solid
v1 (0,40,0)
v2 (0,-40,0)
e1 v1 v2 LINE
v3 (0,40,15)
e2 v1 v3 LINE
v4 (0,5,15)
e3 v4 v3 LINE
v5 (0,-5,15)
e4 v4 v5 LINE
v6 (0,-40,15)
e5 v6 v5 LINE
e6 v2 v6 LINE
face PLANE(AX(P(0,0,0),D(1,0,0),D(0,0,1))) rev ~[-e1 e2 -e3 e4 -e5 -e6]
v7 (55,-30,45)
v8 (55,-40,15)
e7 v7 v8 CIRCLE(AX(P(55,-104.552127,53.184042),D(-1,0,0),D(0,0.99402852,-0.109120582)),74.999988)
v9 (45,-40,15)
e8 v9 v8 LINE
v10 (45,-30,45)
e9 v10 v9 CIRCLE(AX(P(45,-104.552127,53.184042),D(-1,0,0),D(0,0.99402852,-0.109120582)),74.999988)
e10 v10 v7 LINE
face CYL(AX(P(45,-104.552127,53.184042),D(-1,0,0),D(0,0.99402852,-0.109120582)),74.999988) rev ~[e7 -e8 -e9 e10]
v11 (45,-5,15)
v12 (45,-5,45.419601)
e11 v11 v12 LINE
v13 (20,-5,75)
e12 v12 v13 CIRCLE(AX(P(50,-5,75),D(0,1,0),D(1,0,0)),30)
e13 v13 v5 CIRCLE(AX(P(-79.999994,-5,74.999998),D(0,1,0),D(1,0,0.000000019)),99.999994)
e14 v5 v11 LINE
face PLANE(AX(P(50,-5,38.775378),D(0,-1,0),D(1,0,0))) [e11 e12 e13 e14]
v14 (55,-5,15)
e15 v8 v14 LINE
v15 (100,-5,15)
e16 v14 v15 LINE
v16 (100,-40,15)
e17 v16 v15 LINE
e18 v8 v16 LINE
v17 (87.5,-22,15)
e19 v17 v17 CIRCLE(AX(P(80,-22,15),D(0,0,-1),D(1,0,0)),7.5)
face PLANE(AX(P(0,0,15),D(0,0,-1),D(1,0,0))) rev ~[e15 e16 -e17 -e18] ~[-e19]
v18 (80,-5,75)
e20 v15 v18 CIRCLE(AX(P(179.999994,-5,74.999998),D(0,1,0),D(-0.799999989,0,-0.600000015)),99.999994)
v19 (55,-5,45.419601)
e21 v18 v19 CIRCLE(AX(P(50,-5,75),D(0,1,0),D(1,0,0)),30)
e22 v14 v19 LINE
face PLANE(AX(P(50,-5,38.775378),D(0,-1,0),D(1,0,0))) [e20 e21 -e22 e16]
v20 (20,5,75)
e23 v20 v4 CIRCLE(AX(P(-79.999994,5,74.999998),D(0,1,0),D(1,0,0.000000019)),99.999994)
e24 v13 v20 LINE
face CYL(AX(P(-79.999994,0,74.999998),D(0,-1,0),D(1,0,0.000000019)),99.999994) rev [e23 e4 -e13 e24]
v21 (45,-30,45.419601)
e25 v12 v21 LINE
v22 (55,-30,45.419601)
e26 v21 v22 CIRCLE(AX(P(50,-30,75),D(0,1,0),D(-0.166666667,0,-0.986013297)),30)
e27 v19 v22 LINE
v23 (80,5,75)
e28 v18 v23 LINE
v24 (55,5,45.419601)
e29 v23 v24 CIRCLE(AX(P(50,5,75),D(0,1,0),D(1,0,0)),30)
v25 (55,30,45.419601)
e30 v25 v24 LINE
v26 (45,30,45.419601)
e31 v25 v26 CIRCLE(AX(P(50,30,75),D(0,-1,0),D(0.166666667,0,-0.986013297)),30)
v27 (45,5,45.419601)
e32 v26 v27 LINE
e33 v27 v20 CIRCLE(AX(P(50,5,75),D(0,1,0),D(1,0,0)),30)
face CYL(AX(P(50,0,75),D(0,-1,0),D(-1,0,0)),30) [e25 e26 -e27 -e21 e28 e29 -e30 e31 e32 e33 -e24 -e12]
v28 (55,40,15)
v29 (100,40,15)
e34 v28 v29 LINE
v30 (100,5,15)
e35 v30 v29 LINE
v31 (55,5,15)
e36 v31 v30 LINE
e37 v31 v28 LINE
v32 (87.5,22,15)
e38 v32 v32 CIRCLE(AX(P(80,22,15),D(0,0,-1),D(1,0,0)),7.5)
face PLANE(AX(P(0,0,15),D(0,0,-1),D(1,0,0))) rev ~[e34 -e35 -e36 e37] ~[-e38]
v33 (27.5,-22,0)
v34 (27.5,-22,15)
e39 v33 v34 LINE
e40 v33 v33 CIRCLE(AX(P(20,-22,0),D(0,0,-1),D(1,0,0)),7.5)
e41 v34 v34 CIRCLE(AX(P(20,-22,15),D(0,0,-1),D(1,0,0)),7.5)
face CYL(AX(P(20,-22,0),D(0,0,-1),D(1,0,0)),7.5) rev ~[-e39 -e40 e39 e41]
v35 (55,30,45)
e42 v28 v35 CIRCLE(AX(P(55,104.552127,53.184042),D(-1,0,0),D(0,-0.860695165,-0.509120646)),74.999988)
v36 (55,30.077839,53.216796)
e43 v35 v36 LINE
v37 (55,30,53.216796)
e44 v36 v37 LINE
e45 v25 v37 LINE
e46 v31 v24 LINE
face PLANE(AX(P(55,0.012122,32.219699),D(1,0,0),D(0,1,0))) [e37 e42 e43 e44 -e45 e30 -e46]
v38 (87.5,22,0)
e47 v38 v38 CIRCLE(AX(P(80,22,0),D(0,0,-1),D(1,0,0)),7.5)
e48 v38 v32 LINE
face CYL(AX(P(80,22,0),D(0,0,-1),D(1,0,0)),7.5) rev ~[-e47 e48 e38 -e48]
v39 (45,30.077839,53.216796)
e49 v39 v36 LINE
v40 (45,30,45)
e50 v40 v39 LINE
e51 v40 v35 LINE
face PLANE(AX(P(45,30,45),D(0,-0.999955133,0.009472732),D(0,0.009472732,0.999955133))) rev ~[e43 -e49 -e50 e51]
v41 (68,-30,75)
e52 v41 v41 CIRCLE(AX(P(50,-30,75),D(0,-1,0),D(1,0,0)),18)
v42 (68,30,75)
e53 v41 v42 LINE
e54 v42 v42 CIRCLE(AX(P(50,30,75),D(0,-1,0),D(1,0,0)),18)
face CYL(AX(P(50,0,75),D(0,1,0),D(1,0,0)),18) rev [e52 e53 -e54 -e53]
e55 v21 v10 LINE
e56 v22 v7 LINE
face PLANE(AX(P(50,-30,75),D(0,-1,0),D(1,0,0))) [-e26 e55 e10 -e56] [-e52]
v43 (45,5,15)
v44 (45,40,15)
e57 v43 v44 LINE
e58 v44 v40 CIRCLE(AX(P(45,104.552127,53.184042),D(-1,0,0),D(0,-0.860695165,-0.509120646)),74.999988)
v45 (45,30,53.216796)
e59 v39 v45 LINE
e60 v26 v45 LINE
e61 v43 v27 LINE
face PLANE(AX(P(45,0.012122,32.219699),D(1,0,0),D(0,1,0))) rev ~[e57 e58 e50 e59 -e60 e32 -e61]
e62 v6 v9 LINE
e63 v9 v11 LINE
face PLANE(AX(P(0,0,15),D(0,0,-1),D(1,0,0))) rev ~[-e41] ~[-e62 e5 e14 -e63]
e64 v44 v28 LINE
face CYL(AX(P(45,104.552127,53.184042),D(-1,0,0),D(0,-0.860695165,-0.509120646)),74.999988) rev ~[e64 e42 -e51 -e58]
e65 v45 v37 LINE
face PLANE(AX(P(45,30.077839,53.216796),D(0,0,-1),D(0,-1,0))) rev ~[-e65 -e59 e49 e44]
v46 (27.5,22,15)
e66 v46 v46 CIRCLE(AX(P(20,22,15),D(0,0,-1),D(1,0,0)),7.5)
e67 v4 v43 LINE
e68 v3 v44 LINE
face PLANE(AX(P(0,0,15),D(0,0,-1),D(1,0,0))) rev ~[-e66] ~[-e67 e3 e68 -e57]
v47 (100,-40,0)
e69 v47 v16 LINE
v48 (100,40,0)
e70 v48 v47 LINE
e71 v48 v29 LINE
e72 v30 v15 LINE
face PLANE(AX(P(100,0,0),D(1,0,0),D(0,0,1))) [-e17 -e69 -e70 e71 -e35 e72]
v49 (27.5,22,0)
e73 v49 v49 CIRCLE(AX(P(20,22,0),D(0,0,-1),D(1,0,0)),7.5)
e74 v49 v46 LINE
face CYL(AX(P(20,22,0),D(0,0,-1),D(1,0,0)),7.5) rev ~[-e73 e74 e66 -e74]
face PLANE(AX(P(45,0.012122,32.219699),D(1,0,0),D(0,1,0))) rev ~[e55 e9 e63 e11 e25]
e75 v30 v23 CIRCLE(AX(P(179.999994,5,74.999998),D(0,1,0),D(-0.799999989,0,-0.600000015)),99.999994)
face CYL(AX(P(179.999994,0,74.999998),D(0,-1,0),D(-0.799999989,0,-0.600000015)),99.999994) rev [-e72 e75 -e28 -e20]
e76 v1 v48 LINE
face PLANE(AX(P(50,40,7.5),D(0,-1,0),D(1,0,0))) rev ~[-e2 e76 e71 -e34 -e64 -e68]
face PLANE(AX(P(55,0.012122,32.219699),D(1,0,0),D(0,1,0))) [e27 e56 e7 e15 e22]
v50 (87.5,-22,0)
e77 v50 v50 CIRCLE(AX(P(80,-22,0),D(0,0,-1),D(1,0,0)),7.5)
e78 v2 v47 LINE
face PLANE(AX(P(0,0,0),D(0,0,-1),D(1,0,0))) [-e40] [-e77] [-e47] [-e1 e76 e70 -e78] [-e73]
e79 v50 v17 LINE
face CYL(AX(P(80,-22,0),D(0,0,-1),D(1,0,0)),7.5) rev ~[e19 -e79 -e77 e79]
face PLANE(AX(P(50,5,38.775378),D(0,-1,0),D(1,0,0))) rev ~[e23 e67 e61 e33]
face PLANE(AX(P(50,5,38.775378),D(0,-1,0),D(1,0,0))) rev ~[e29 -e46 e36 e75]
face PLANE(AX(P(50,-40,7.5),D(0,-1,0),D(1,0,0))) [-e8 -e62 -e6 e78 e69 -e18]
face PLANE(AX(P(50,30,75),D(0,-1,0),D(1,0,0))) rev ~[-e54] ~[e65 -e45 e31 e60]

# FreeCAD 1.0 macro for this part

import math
import FreeCAD as App
import Part
import Sketcher
from FreeCAD import Vector
Q = App.Units.Quantity


def add_polygon(sketch, points):
    """Adds a closed chain of lines whose ends are joined by coincident constraints."""
    first, n = sketch.GeometryCount, len(points)
    for a, b in zip(points, points[1:] + points[:1]):
        sketch.addGeometry(Part.LineSegment(App.Vector(*a, 0), App.Vector(*b, 0)), False)
    for i in range(n):
        sketch.addConstraint(Sketcher.Constraint("Coincident", first + i, 2, first + (i + 1) % n, 1))

doc = App.newDocument("Part")
body = doc.addObject("PartDesign::Body", "Body")

# Sketch on XZ plane
sketch1 = body.newObject("Sketcher::SketchObject", "Sketch")
sketch1.AttachmentSupport = (doc.getObject("XZ_Plane"), [""])
sketch1.MapMode = "FlatFace"
add_polygon(sketch1, [(0, 15), (0, 0), (100, 0), (100, 15)])  # lines 0-3
sketch1.addConstraint([
    Sketcher.Constraint("Vertical", 0),
    Sketcher.Constraint("Horizontal", 1),
    Sketcher.Constraint("Vertical", 2),
    Sketcher.Constraint("Horizontal", 3),
    Sketcher.Constraint("Coincident", 0, 2, -1, 1),
    Sketcher.Constraint("DistanceX", 1, 1, 1, 2, Q("100 mm")),
    Sketcher.Constraint("DistanceY", 0, 2, 0, 1, Q("15 mm")),
])
pad1 = body.newObject("PartDesign::Pad", "Pad")
pad1.Profile = sketch1
pad1.Length = 80
pad1.Midplane = True
body2 = doc.addObject("PartDesign::Body", "Body001")

# Sketch on XZ plane
sketch2 = body2.newObject("Sketcher::SketchObject", "Sketch001")
sketch2.AttachmentSupport = (doc.getObject("XZ_Plane001"), [""])
sketch2.MapMode = "FlatFace"
sketch2.addGeometry([
    Part.Circle(Vector(50, 75, 0), Vector(0, 0, 1), 30),
    Part.Circle(Vector(50, 75, 0), Vector(0, 0, 1), 18),
], False)
sketch2.addConstraint([
    Sketcher.Constraint("Coincident", 1, 3, 0, 3),
    Sketcher.Constraint("Diameter", 0, Q("60 mm")),
    Sketcher.Constraint("Diameter", 1, Q("36 mm")),
    Sketcher.Constraint("DistanceX", -1, 1, 0, 3, Q("50 mm")),
    Sketcher.Constraint("DistanceY", -1, 1, 0, 3, Q("75 mm")),
])
pad2 = body2.newObject("PartDesign::Pad", "Pad001")
pad2.Profile = sketch2
pad2.Length = 60
pad2.Midplane = True
body.AllowCompound = True
doc.recompute()

boolean = body.newObject("PartDesign::Boolean", "Boolean")
boolean.Type = "Fuse"
boolean.addObjects([body2])

# Sketch on XZ plane
sketch3 = body.newObject("Sketcher::SketchObject", "Sketch002")
sketch3.AttachmentSupport = (doc.getObject("XZ_Plane"), [""])
sketch3.MapMode = "FlatFace"
sketch3.addGeometry([
    Part.ArcOfCircle(Part.Circle(Vector(-80, 75, 0), Vector(0, 0, 1), 100), math.radians(-37), math.radians(0)),
    Part.LineSegment(Vector(0, 15, 0), Vector(100, 15, 0)),
    Part.ArcOfCircle(Part.Circle(Vector(180, 75, 0), Vector(0, 0, 1), 100), math.radians(180), math.radians(217)),
    Part.ArcOfCircle(Part.Circle(Vector(50, 75, 0), Vector(0, 0, 1), 30), math.radians(180), math.radians(360)),
], False)
sketch3.addConstraint([
    Sketcher.Constraint("Coincident", 0, 1, 1, 1),
    Sketcher.Constraint("Coincident", 1, 2, 2, 2),
    Sketcher.Constraint("Tangent", 2, 1, 3, 2),
    Sketcher.Constraint("Tangent", 3, 1, 0, 2),
    Sketcher.Constraint("Horizontal", 1),
    Sketcher.Constraint("Equal", 0, 2),
    Sketcher.Constraint("PointOnObject", 0, 1, -2),
    Sketcher.Constraint("Horizontal", 0, 3, 2, 3),
    Sketcher.Constraint("Horizontal", 2, 3, 3, 3),
    Sketcher.Constraint("Radius", 3, Q("30 mm")),
    Sketcher.Constraint("DistanceX", 1, 1, 1, 2, Q("100 mm")),
    Sketcher.Constraint("DistanceY", -1, 1, 0, 3, Q("74.999998 mm")),
    Sketcher.Constraint("DistanceY", -1, 1, 0, 1, Q("15 mm")),
])
pad3 = body.newObject("PartDesign::Pad", "Pad002")
pad3.Profile = sketch3
pad3.Length = 10
pad3.Midplane = True

# Sketch on YZ plane
sketch4 = body.newObject("Sketcher::SketchObject", "Sketch003")
sketch4.AttachmentSupport = (doc.getObject("YZ_Plane"), [""])
sketch4.MapMode = "FlatFace"
sketch4.AttachmentOffset = App.Placement(Vector(0, 0, 45), App.Rotation())
sketch4.addGeometry([
    Part.ArcOfCircle(Part.Circle(Vector(105, 53, 0), Vector(0, 0, 1), 75), math.radians(-174), math.radians(-149)),  # 0
    Part.LineSegment(Vector(30, 45, 0), Vector(30, 53, 0)),  # 1
    Part.LineSegment(Vector(30, 53, 0), Vector(-30, 53, 0)),  # 2
    Part.LineSegment(Vector(-30, 53, 0), Vector(-30, 45, 0)),  # 3
    Part.ArcOfCircle(Part.Circle(Vector(-105, 53, 0), Vector(0, 0, 1), 75), math.radians(-31), math.radians(-6)),  # 4
    Part.LineSegment(Vector(-40, 15, 0), Vector(40, 15, 0)),  # 5
], False)
sketch4.addConstraint([
    Sketcher.Constraint("Coincident", 0, 1, 1, 1),
    Sketcher.Constraint("Coincident", 1, 2, 2, 1),
    Sketcher.Constraint("Coincident", 2, 2, 3, 1),
    Sketcher.Constraint("Coincident", 3, 2, 4, 2),
    Sketcher.Constraint("Coincident", 4, 1, 5, 1),
    Sketcher.Constraint("Coincident", 5, 2, 0, 2),
    Sketcher.Constraint("Horizontal", 2),
    Sketcher.Constraint("Vertical", 3),
    Sketcher.Constraint("Horizontal", 5),
    Sketcher.Constraint("Equal", 0, 4),
    Sketcher.Constraint("Symmetric", 0, 3, 4, 3, -2),
    Sketcher.Constraint("Horizontal", 0, 1, 3, 2),
    Sketcher.Constraint("DistanceX", 5, 1, 5, 2, Q("80 mm")),
    Sketcher.Constraint("DistanceX", -1, 1, 0, 1, Q("30 mm")),
    Sketcher.Constraint("DistanceY", -1, 1, 0, 1, Q("45 mm")),
    Sketcher.Constraint("DistanceY", -1, 1, 4, 1, Q("15 mm")),
    Sketcher.Constraint("Radius", 0, Q("74.999988 mm")),
    Sketcher.Constraint("DistanceX", 2, 2, 2, 1, Q("60.077839 mm")),
    Sketcher.Constraint("DistanceY", 3, 2, 3, 1, Q("8.216796 mm")),
])
pad4 = body.newObject("PartDesign::Pad", "Pad003")
pad4.Profile = sketch4
pad4.Length = 10

# Sketch on XY plane
sketch5 = body.newObject("Sketcher::SketchObject", "Sketch004")
sketch5.AttachmentSupport = (doc.getObject("XY_Plane"), [""])
sketch5.MapMode = "FlatFace"
sketch5.addGeometry([
    Part.Circle(Vector(80, 22, 0), Vector(0, 0, 1), 8),
    Part.Circle(Vector(20, 22, 0), Vector(0, 0, 1), 8),
    Part.Circle(Vector(80, -22, 0), Vector(0, 0, 1), 8),
    Part.Circle(Vector(20, -22, 0), Vector(0, 0, 1), 8),
], False)
sketch5.addConstraint([
    Sketcher.Constraint("Equal", 0, 1),
    Sketcher.Constraint("Equal", 1, 2),
    Sketcher.Constraint("Equal", 2, 3),
    Sketcher.Constraint("Symmetric", 0, 3, 2, 3, -1),
    Sketcher.Constraint("Symmetric", 1, 3, 3, 3, -1),
    Sketcher.Constraint("Horizontal", 0, 3, 1, 3),
    Sketcher.Constraint("Diameter", 0, Q("15 mm")),
    Sketcher.Constraint("DistanceX", -1, 1, 0, 3, Q("80 mm")),
    Sketcher.Constraint("DistanceY", -1, 1, 0, 3, Q("22 mm")),
    Sketcher.Constraint("DistanceX", -1, 1, 1, 3, Q("20 mm")),
])
pocket1 = body.newObject("PartDesign::Pocket", "Pocket")
pocket1.Profile = sketch5
pocket1.Length = 15
pocket1.Reversed = True

doc.recompute()
